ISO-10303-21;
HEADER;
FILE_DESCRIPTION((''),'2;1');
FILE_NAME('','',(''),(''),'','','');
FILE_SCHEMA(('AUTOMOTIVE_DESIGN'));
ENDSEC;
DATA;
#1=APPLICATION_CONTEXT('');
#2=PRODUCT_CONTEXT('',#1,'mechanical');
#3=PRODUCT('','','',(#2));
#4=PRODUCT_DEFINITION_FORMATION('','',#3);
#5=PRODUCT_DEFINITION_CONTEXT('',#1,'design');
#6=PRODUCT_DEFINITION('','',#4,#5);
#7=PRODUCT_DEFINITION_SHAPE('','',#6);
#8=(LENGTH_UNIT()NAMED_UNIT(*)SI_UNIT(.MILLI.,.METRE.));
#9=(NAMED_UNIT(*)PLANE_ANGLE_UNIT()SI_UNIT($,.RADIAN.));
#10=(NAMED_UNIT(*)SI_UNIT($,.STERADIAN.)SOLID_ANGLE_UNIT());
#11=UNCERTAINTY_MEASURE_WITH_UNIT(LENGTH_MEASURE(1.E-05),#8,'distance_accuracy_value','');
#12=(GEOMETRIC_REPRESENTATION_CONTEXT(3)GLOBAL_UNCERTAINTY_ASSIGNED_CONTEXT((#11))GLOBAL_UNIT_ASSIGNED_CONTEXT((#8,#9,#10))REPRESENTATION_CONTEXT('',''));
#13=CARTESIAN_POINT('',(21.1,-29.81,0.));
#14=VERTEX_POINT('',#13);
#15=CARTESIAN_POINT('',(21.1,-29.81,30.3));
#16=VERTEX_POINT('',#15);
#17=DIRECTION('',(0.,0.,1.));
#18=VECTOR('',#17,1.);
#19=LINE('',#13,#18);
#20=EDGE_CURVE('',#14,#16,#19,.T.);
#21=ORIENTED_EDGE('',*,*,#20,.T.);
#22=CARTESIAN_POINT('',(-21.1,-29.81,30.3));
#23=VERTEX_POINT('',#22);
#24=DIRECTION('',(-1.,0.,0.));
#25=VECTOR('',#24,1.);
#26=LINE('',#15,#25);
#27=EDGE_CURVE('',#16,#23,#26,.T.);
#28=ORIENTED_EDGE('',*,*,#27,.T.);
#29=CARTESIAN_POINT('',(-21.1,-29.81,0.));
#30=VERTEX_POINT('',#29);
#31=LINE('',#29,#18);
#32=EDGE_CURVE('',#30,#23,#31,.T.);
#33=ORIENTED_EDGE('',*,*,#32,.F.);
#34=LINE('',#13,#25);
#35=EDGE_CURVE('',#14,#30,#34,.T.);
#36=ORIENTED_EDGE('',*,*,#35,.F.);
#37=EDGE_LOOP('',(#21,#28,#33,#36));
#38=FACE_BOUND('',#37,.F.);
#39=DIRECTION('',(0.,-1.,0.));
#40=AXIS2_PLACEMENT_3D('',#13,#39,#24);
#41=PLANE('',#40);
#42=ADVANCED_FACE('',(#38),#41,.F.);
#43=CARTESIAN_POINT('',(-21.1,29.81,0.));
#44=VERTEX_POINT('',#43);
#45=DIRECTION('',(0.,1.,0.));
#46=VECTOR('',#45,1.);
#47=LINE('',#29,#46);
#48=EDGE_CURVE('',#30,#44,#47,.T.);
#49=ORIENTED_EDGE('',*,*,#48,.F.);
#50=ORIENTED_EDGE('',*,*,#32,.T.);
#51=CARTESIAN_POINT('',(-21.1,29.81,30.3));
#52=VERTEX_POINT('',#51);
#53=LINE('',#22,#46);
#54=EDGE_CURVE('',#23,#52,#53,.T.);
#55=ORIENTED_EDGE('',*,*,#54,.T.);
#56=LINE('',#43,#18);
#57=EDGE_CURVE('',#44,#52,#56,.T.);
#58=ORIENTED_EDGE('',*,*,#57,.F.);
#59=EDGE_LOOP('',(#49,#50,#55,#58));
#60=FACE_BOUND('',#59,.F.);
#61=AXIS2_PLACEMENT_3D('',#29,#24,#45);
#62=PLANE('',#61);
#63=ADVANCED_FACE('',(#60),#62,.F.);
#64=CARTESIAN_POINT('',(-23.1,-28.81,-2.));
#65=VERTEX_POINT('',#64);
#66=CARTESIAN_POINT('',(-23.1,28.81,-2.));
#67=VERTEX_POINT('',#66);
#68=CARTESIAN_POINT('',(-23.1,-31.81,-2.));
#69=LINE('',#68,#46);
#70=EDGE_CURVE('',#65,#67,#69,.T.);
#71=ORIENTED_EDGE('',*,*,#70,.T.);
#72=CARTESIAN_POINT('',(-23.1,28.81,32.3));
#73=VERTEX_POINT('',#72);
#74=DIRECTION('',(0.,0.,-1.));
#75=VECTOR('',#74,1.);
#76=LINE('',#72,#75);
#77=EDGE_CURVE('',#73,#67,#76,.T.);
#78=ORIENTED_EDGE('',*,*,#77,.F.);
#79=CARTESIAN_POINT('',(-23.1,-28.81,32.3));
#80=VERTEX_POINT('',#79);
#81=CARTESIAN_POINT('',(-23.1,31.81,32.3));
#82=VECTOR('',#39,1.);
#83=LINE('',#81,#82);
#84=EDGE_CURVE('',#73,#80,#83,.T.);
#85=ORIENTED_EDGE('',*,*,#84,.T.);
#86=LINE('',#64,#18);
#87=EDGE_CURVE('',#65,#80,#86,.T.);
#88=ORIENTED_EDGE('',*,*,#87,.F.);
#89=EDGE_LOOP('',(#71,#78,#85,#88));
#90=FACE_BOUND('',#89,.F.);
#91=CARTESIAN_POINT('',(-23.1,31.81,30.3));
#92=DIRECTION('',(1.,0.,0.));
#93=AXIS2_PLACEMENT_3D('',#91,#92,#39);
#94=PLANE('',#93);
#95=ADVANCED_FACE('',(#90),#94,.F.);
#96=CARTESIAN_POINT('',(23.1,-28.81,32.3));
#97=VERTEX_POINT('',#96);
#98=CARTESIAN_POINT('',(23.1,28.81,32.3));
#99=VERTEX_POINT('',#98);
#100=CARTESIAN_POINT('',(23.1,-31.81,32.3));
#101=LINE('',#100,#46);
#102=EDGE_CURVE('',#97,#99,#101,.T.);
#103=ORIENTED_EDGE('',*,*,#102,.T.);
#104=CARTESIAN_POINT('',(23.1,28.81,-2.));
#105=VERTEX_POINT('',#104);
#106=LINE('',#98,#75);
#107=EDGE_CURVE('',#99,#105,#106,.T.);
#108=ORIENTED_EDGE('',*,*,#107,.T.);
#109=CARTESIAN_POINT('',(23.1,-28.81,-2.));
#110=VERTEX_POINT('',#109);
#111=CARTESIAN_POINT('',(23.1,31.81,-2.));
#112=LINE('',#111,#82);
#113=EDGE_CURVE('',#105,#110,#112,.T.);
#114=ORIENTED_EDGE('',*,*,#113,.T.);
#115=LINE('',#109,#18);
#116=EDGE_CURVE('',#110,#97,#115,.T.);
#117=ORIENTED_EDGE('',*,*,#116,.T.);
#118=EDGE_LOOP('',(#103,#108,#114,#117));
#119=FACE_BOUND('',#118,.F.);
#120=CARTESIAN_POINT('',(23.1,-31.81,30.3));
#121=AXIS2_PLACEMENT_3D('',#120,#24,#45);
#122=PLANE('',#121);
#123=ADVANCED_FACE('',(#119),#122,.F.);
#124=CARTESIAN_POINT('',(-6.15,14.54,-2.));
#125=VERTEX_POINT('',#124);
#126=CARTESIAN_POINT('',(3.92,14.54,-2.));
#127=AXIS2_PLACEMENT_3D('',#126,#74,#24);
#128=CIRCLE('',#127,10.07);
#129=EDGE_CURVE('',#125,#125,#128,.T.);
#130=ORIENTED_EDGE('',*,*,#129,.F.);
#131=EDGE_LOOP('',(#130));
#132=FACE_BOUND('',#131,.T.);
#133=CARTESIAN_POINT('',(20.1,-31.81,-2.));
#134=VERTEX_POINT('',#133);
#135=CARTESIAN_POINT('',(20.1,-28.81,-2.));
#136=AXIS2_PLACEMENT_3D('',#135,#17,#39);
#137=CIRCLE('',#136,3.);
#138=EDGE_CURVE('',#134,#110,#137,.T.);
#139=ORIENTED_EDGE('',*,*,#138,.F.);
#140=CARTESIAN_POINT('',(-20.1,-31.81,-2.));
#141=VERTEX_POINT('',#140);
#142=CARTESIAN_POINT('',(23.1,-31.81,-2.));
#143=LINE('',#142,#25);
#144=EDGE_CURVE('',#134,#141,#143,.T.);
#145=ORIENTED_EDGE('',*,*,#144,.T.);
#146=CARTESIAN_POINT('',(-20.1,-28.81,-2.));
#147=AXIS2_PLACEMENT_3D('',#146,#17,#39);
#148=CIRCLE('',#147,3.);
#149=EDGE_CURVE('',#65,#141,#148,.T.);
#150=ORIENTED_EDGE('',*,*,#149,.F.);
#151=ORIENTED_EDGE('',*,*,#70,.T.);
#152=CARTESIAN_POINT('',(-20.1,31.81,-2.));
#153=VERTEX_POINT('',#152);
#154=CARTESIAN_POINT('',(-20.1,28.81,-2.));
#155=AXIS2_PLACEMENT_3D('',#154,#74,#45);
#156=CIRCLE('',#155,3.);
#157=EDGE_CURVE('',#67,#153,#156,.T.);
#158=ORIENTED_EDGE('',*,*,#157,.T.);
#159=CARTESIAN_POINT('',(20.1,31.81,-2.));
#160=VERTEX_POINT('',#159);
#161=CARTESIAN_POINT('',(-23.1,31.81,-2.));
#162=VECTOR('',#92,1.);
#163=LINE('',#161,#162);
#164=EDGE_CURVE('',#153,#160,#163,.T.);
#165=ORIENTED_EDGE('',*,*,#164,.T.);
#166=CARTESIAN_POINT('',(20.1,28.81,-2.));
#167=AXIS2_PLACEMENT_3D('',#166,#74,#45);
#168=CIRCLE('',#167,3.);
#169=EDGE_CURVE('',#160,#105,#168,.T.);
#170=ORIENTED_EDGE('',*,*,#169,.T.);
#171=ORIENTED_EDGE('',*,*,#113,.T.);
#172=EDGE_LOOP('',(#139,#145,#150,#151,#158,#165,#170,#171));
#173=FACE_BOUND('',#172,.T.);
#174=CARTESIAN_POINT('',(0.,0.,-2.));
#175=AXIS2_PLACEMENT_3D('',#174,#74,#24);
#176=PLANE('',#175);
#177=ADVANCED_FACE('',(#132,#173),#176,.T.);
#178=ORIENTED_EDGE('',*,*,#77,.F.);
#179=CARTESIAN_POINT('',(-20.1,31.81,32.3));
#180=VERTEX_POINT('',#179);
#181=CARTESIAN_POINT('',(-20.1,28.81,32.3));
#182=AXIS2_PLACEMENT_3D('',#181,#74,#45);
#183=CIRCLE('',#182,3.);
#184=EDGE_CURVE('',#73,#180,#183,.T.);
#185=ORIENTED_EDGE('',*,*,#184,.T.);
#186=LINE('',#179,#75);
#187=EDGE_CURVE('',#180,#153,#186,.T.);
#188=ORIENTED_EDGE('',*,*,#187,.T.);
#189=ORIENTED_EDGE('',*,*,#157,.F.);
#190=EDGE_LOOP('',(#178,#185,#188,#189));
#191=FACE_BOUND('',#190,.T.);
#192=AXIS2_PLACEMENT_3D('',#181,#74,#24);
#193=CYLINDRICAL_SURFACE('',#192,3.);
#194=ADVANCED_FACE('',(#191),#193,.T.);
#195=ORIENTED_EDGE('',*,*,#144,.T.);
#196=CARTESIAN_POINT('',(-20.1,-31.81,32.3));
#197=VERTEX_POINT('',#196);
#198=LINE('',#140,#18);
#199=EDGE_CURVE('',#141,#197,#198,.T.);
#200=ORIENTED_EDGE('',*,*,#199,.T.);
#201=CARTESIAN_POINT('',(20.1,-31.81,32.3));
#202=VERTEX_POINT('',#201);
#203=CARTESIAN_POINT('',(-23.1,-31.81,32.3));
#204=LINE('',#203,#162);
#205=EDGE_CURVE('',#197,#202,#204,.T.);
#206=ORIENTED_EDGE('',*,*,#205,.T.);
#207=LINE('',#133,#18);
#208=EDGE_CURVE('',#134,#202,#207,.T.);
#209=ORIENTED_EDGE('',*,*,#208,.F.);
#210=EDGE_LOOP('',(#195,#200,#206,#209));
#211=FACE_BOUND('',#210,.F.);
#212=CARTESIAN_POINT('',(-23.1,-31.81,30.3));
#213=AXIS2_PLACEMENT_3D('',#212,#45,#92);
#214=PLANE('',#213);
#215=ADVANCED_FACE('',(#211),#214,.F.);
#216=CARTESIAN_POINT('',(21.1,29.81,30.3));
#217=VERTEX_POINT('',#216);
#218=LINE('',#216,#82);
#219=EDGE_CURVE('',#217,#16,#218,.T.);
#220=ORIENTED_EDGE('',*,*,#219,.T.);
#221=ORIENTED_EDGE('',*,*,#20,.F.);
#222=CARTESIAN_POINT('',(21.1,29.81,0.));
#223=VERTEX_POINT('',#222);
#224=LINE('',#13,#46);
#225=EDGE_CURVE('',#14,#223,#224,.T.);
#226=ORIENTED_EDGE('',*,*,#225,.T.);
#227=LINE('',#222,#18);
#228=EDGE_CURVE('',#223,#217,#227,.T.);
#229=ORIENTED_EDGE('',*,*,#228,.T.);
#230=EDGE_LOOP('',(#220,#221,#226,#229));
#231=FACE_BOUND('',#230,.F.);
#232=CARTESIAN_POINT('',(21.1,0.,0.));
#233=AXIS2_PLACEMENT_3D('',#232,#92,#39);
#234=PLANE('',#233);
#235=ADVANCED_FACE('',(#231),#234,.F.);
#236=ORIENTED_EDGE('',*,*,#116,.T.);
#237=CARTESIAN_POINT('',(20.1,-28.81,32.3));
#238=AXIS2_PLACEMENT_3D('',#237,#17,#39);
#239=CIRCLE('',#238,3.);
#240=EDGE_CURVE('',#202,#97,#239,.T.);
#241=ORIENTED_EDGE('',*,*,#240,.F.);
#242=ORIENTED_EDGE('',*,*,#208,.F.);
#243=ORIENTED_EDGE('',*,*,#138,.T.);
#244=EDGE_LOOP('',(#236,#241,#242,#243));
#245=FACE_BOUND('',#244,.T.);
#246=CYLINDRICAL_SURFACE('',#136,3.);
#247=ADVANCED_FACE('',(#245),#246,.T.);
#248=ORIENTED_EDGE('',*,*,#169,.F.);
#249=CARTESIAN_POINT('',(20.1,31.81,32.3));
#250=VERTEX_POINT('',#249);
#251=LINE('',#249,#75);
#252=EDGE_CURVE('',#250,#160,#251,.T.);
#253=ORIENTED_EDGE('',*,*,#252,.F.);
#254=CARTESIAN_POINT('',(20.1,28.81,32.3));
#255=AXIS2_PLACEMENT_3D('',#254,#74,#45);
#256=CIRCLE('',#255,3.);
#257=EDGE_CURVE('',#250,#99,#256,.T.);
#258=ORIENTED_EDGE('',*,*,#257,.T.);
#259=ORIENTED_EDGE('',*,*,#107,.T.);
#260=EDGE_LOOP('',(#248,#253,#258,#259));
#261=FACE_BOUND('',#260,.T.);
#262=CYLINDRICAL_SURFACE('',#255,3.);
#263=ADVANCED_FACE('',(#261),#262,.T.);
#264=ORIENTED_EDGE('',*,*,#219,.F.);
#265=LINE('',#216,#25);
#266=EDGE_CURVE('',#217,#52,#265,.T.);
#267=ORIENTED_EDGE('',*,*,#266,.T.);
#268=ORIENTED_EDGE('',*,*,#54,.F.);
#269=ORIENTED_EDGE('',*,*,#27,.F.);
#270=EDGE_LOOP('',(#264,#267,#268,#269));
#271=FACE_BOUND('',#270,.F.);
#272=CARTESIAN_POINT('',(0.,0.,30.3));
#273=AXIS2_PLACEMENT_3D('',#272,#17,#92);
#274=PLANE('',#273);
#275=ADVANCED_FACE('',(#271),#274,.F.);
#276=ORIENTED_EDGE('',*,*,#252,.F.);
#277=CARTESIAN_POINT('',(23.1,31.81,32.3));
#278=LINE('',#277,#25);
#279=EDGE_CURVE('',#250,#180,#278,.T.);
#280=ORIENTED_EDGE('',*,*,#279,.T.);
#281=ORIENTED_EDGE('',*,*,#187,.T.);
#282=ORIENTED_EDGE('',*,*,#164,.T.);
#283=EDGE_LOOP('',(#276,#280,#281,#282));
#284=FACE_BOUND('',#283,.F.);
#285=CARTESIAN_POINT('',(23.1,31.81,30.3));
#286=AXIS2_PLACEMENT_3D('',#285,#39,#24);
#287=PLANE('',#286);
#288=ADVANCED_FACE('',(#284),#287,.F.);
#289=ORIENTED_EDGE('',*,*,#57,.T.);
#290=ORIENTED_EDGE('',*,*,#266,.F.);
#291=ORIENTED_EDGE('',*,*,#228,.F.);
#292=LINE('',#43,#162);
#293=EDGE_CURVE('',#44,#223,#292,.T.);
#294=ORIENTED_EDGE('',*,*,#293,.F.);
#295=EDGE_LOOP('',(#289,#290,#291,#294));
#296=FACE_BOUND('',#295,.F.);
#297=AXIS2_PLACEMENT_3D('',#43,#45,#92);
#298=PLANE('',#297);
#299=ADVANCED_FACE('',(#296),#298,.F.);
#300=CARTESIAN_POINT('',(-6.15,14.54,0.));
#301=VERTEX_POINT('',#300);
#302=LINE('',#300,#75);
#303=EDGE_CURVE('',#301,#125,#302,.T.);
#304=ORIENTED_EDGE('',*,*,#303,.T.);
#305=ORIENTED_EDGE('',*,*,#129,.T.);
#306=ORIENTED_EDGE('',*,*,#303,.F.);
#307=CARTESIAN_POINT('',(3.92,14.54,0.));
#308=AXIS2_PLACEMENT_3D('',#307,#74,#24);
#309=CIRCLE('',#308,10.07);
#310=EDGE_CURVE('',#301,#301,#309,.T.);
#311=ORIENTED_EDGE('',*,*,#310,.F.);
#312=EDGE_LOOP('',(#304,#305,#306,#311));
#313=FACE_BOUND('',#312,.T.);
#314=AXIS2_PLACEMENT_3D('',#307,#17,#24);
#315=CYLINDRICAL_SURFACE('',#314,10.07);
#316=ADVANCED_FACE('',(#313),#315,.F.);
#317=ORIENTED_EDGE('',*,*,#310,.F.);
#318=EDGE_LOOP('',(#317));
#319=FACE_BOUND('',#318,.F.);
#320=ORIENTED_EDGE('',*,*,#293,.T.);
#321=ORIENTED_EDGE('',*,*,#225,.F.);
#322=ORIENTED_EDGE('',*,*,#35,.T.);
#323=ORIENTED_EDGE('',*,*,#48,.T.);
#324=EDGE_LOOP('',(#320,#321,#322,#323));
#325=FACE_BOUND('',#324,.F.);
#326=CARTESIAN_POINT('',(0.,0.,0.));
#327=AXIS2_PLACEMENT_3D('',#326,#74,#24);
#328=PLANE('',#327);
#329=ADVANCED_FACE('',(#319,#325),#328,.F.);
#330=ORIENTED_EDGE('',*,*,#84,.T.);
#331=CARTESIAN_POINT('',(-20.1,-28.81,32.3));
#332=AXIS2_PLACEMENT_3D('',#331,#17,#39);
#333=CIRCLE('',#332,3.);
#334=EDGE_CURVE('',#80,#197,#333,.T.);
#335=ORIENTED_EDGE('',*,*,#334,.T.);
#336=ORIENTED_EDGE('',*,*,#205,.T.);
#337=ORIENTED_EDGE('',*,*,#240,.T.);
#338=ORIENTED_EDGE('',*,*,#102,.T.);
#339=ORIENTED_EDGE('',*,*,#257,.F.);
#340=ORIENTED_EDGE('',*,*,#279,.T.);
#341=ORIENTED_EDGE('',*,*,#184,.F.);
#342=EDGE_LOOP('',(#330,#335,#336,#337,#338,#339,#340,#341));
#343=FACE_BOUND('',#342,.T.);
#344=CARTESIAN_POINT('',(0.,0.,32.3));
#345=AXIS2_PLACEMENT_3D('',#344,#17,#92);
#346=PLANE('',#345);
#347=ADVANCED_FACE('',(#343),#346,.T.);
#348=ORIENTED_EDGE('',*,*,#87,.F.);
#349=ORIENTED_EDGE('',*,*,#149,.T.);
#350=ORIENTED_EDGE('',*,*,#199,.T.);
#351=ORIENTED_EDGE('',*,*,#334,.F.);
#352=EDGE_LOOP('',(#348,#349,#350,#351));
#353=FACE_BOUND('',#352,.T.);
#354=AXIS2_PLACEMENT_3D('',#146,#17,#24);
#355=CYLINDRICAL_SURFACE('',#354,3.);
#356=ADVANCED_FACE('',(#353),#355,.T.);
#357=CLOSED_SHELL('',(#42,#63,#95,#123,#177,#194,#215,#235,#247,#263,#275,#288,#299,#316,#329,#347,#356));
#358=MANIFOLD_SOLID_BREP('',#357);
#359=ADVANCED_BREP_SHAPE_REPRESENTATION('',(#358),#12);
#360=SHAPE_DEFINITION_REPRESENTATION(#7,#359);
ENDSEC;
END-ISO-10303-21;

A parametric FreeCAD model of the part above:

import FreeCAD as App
import Part
import Sketcher

V = App.Vector
Q = App.Units.Quantity


def edges_at(feature, points):
    """Names of the edges that pass closest to the given points."""
    edges = feature.Shape.Edges
    near = lambda p: min(range(len(edges)), key=lambda i: edges[i].distToShape(Part.Vertex(*p))[0])
    return sorted({f"Edge{near(p) + 1}" for p in points})


def add_polygon(sketch, points):
    """Adds a closed chain of lines whose ends are joined by coincident constraints."""
    first, n = sketch.GeometryCount, len(points)
    for a, b in zip(points, points[1:] + points[:1]):
        sketch.addGeometry(Part.LineSegment(App.Vector(*a, 0), App.Vector(*b, 0)), False)
    for i in range(n):
        sketch.addConstraint(Sketcher.Constraint("Coincident", first + i, 2, first + (i + 1) % n, 1))

doc = App.newDocument("Part")
body = doc.addObject("PartDesign::Body", "Body")

# Sketch on XY plane
sketch1 = body.newObject("Sketcher::SketchObject", "Sketch")
sketch1.AttachmentSupport = (doc.getObject("XY_Plane"), [""])
sketch1.MapMode = "FlatFace"
add_polygon(sketch1, [(23.1, -31.81), (23.1, 31.81), (-23.1, 31.81), (-23.1, -31.81)])  # lines 0-3
add_polygon(sketch1, [(-21.1, -29.81), (-21.1, 29.81), (21.1, 29.81), (21.1, -29.81)])  # lines 4-7
sketch1.addConstraint(Sketcher.Constraint("Vertical", 0))
sketch1.addConstraint(Sketcher.Constraint("Horizontal", 1))
sketch1.addConstraint(Sketcher.Constraint("Vertical", 2))
sketch1.addConstraint(Sketcher.Constraint("Horizontal", 3))
sketch1.addConstraint(Sketcher.Constraint("Vertical", 4))
sketch1.addConstraint(Sketcher.Constraint("Horizontal", 5))
sketch1.addConstraint(Sketcher.Constraint("Vertical", 6))
sketch1.addConstraint(Sketcher.Constraint("Horizontal", 7))
sketch1.addConstraint(Sketcher.Constraint("Symmetric", 0, 2, 2, 2, -1, 1))
sketch1.addConstraint(Sketcher.Constraint("Symmetric", 4, 2, 6, 2, -1, 1))
sketch1.addConstraint(Sketcher.Constraint("DistanceX", 5, 1, 5, 2, Q("42.2 mm")))
sketch1.addConstraint(Sketcher.Constraint("DistanceX", 1, 2, 4, 2, Q("2 mm")))
sketch1.addConstraint(Sketcher.Constraint("DistanceY", 4, 2, 1, 2, Q("2 mm")))
sketch1.addConstraint(Sketcher.Constraint("DistanceY", 4, 1, 4, 2, Q("59.62 mm")))
pad1 = body.newObject("PartDesign::Pad", "Pad")
pad1.Profile = sketch1
pad1.Length = 30.3

# Sketch on XY plane
sketch2 = body.newObject("Sketcher::SketchObject", "Sketch001")
sketch2.AttachmentSupport = (doc.getObject("XY_Plane"), [""])
sketch2.MapMode = "FlatFace"
sketch2.AttachmentOffset = App.Placement(V(0, 0, 30.3), App.Rotation())
add_polygon(sketch2, [(-23.1, 31.81), (-23.1, -31.81), (23.1, -31.81), (23.1, 31.81)])  # lines 0-3
sketch2.addConstraint(Sketcher.Constraint("Vertical", 0))
sketch2.addConstraint(Sketcher.Constraint("Horizontal", 1))
sketch2.addConstraint(Sketcher.Constraint("Vertical", 2))
sketch2.addConstraint(Sketcher.Constraint("Horizontal", 3))
sketch2.addConstraint(Sketcher.Constraint("Symmetric", 0, 2, 2, 2, -1, 1))
sketch2.addConstraint(Sketcher.Constraint("DistanceX", 1, 1, 1, 2, Q("46.2 mm")))
sketch2.addConstraint(Sketcher.Constraint("DistanceY", 0, 2, 0, 1, Q("63.62 mm")))
pad2 = body.newObject("PartDesign::Pad", "Pad001")
pad2.Profile = sketch2
pad2.Length = 2

# Sketch on XY plane
sketch3 = body.newObject("Sketcher::SketchObject", "Sketch002")
sketch3.AttachmentSupport = (doc.getObject("XY_Plane"), [""])
sketch3.MapMode = "FlatFace"
add_polygon(sketch3, [(23.1, 31.81), (23.1, -31.81), (-23.1, -31.81), (-23.1, 31.81)])  # lines 0-3
sketch3.addGeometry(Part.Circle(V(3.92, 14.54, 0), V(0, 0, 1), 10.07), False)  # 4
sketch3.addConstraint(Sketcher.Constraint("Vertical", 0))
sketch3.addConstraint(Sketcher.Constraint("Horizontal", 1))
sketch3.addConstraint(Sketcher.Constraint("Vertical", 2))
sketch3.addConstraint(Sketcher.Constraint("Horizontal", 3))
sketch3.addConstraint(Sketcher.Constraint("Symmetric", 0, 2, 2, 2, -1, 1))
sketch3.addConstraint(Sketcher.Constraint("Diameter", 4, Q("20.14 mm")))
sketch3.addConstraint(Sketcher.Constraint("DistanceX", 1, 2, 1, 1, Q("46.2 mm")))
sketch3.addConstraint(Sketcher.Constraint("DistanceY", 0, 2, 0, 1, Q("63.62 mm")))
sketch3.addConstraint(Sketcher.Constraint("DistanceX", -1, 1, 4, 3, Q("3.92 mm")))
sketch3.addConstraint(Sketcher.Constraint("DistanceY", -1, 1, 4, 3, Q("14.54 mm")))
pad3 = body.newObject("PartDesign::Pad", "Pad002")
pad3.Profile = sketch3
pad3.Length = 2
pad3.Reversed = True
doc.recompute()

fillet = body.newObject("PartDesign::Fillet", "Fillet")
fillet.Base = (pad3, edges_at(pad3, [
    (-23.1, -31.81, 15.15),
    (-23.1, 31.81, 15.15),
    (23.1, -31.81, 15.15),
    (23.1, 31.81, 15.15),
]))
fillet.Radius = 3

doc.recompute()
